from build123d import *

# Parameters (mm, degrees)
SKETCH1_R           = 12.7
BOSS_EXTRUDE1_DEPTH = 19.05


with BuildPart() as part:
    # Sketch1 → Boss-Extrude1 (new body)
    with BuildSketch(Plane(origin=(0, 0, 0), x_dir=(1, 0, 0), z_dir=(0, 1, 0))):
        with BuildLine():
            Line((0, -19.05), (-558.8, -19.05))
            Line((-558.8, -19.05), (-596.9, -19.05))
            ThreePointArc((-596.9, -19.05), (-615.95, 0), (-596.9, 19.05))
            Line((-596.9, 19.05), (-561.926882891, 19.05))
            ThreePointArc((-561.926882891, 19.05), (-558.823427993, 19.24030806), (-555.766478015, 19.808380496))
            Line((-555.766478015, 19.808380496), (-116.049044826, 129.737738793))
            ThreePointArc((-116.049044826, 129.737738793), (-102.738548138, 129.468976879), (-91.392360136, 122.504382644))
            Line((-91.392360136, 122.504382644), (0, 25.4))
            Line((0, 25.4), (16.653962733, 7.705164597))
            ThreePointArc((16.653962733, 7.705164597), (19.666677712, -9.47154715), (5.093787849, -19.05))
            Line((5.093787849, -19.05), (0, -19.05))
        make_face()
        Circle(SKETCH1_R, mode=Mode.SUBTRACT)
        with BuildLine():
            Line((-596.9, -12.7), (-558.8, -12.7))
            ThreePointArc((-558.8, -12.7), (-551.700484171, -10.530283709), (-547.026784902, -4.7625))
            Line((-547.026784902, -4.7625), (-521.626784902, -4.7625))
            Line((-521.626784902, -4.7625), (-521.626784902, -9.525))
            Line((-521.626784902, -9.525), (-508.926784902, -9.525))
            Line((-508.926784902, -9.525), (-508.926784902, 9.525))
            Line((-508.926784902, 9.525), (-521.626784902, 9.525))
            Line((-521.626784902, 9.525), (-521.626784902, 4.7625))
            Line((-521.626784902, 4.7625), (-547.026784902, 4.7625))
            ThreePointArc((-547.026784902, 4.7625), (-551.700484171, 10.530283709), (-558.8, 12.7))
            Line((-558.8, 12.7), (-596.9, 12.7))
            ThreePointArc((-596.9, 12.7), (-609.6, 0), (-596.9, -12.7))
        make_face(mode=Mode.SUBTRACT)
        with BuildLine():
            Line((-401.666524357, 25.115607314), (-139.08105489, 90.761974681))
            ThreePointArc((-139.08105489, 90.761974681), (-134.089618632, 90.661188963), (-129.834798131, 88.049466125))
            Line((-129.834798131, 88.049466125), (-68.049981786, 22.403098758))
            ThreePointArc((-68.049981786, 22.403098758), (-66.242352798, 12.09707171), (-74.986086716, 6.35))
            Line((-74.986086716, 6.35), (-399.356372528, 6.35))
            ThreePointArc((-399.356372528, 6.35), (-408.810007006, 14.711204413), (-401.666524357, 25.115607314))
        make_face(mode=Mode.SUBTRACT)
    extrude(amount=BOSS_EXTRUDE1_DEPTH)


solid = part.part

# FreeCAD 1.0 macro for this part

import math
import FreeCAD as App
import Part
import Sketcher
Q = App.Units.Quantity

doc = App.newDocument("Part")
body = doc.addObject("PartDesign::Body", "Body")

# Sketch on XZ plane
sketch1 = body.newObject("Sketcher::SketchObject", "Sketch")
sketch1.AttachmentSupport = (doc.getObject("XZ_Plane"), [""])
sketch1.MapMode = "FlatFace"
sketch1.addGeometry([
    Part.ArcOfCircle(Part.Circle(App.Vector(-596.9, 0, 0), App.Vector(0, 0, 1), 19.1), math.radians(90), math.radians(270)),  # 0
    Part.LineSegment(App.Vector(-596.9, 19.1, 0), App.Vector(5.1, 19.1, 0)),  # 1
    Part.ArcOfCircle(Part.Circle(App.Vector(5.1, 3.2, 0), App.Vector(0, 0, 1), 15.9), math.radians(-43), math.radians(90)),  # 2
    Part.LineSegment(App.Vector(16.7, -7.7, 0), App.Vector(0, -25.4, 0)),  # 3
    Part.LineSegment(App.Vector(0, -25.4, 0), App.Vector(-91.4, -122.5, 0)),  # 4
    Part.ArcOfCircle(Part.Circle(App.Vector(-109.9, -105.1, 0), App.Vector(0, 0, 1), 25.4), math.radians(-104), math.radians(-43)),  # 5
    Part.LineSegment(App.Vector(-116, -129.7, 0), App.Vector(-555.8, -19.8, 0)),  # 6
    Part.ArcOfCircle(Part.Circle(App.Vector(-561.9, -44.4, 0), App.Vector(0, 0, 1), 25.4), math.radians(75.96), math.radians(90)),  # 7
    Part.LineSegment(App.Vector(-561.9, -19.1, 0), App.Vector(-596.9, -19.1, 0)),  # 8
    Part.Circle(App.Vector(0, 0, 0), App.Vector(0, 0, 1), 12.7),  # 9
    Part.ArcOfCircle(Part.Circle(App.Vector(-596.9, 0, 0), App.Vector(0, 0, 1), 12.7), math.radians(90), math.radians(270)),  # 10
    Part.LineSegment(App.Vector(-596.9, -12.7, 0), App.Vector(-558.8, -12.7, 0)),  # 11
    Part.ArcOfCircle(Part.Circle(App.Vector(-558.8, 0, 0), App.Vector(0, 0, 1), 12.7), math.radians(-90), math.radians(-22)),  # 12
    Part.LineSegment(App.Vector(-547, -4.8, 0), App.Vector(-521.6, -4.8, 0)),  # 13
    Part.LineSegment(App.Vector(-521.6, -4.8, 0), App.Vector(-521.6, -9.5, 0)),  # 14
    Part.LineSegment(App.Vector(-521.6, -9.5, 0), App.Vector(-508.9, -9.5, 0)),  # 15
    Part.LineSegment(App.Vector(-508.9, -9.5, 0), App.Vector(-508.9, 9.5, 0)),  # 16
    Part.LineSegment(App.Vector(-508.9, 9.5, 0), App.Vector(-521.6, 9.5, 0)),  # 17
    Part.LineSegment(App.Vector(-521.6, 9.5, 0), App.Vector(-521.6, 4.8, 0)),  # 18
    Part.LineSegment(App.Vector(-521.6, 4.8, 0), App.Vector(-547, 4.8, 0)),  # 19
    Part.ArcOfCircle(Part.Circle(App.Vector(-558.8, 0, 0), App.Vector(0, 0, 1), 12.7), math.radians(22), math.radians(90)),  # 20
    Part.LineSegment(App.Vector(-558.8, 12.7, 0), App.Vector(-596.9, 12.7, 0)),  # 21
    Part.LineSegment(App.Vector(-401.7, -25.1, 0), App.Vector(-139.1, -90.8, 0)),  # 22
    Part.ArcOfCircle(Part.Circle(App.Vector(-136.8, -81.5, 0), App.Vector(0, 0, 1), 9.5), math.radians(-104), math.radians(-43)),  # 23
    Part.LineSegment(App.Vector(-129.8, -88, 0), App.Vector(-68, -22.4, 0)),  # 24
    Part.ArcOfCircle(Part.Circle(App.Vector(-75, -15.9, 0), App.Vector(0, 0, 1), 9.5), math.radians(-43), math.radians(90)),  # 25
    Part.LineSegment(App.Vector(-75, -6.3, 0), App.Vector(-399.4, -6.3, 0)),  # 26
    Part.ArcOfCircle(Part.Circle(App.Vector(-399.4, -15.9, 0), App.Vector(0, 0, 1), 9.5), math.radians(90), math.radians(256)),  # 27
], False)
sketch1.addConstraint([
    Sketcher.Constraint("Tangent", 0, 1, 1, 1),
    Sketcher.Constraint("Tangent", 1, 2, 2, 2),
    Sketcher.Constraint("Tangent", 2, 1, 3, 1),
    Sketcher.Constraint("Coincident", 3, 2, 4, 1),
    Sketcher.Constraint("Tangent", 4, 2, 5, 2),
    Sketcher.Constraint("Tangent", 5, 1, 6, 1),
    Sketcher.Constraint("Tangent", 6, 2, 7, 1),
    Sketcher.Constraint("Tangent", 7, 2, 8, 1),
    Sketcher.Constraint("Tangent", 8, 2, 0, 2),
    Sketcher.Constraint("Tangent", 10, 2, 11, 1),
    Sketcher.Constraint("Tangent", 11, 2, 12, 1),
    Sketcher.Constraint("Coincident", 12, 2, 13, 1),
    Sketcher.Constraint("Coincident", 13, 2, 14, 1),
    Sketcher.Constraint("Coincident", 14, 2, 15, 1),
    Sketcher.Constraint("Coincident", 15, 2, 16, 1),
    Sketcher.Constraint("Coincident", 16, 2, 17, 1),
    Sketcher.Constraint("Coincident", 17, 2, 18, 1),
    Sketcher.Constraint("Coincident", 18, 2, 19, 1),
    Sketcher.Constraint("Coincident", 19, 2, 20, 1),
    Sketcher.Constraint("Tangent", 20, 2, 21, 1),
    Sketcher.Constraint("Tangent", 21, 2, 10, 1),
    Sketcher.Constraint("Tangent", 22, 2, 23, 1),
    Sketcher.Constraint("Tangent", 23, 2, 24, 1),
    Sketcher.Constraint("Tangent", 24, 2, 25, 1),
    Sketcher.Constraint("Tangent", 25, 2, 26, 1),
    Sketcher.Constraint("Tangent", 26, 2, 27, 1),
    Sketcher.Constraint("Tangent", 27, 2, 22, 1),
    Sketcher.Constraint("Horizontal", 1),
    Sketcher.Constraint("Horizontal", 8),
    Sketcher.Constraint("Horizontal", 11),
    Sketcher.Constraint("Horizontal", 13),
    Sketcher.Constraint("Vertical", 14),
    Sketcher.Constraint("Horizontal", 15),
    Sketcher.Constraint("Vertical", 16),
    Sketcher.Constraint("Horizontal", 17),
    Sketcher.Constraint("Vertical", 18),
    Sketcher.Constraint("Horizontal", 19),
    Sketcher.Constraint("Horizontal", 21),
    Sketcher.Constraint("Horizontal", 26),
    Sketcher.Constraint("Coincident", 9, 3, -1, 1),
    Sketcher.Constraint("Coincident", 10, 3, 0, 3),
    Sketcher.Constraint("Coincident", 20, 3, 12, 3),
    Sketcher.Constraint("Equal", 5, 7),
    Sketcher.Constraint("Equal", 9, 10),
    Sketcher.Constraint("Equal", 10, 12),
    Sketcher.Constraint("Equal", 23, 25),
    Sketcher.Constraint("Equal", 25, 27),
    Sketcher.Constraint("Symmetric", 14, 2, 17, 2, -1),
    Sketcher.Constraint("Symmetric", 12, 2, 19, 2, -1),
    Sketcher.Constraint("PointOnObject", 3, 2, -2),
    Sketcher.Constraint("Parallel", 3, 4),
    Sketcher.Constraint("Parallel", 6, 22),
    Sketcher.Constraint("Parallel", 4, 24),
    Sketcher.Constraint("Diameter", 9, Q("1 in")),
    Sketcher.Constraint("Radius", 5, Q("1 in")),
    Sketcher.Constraint("DistanceX", 13, 1, 13, 2, Q("1 in")),
    Sketcher.Constraint("Radius", 0, Q("0.75 in")),
    Sketcher.Constraint("DistanceX", 11, 1, 11, 2, Q("1.5 in")),
    Sketcher.Constraint("DistanceX", 15, 1, 15, 2, Q("0.5 in")),
    Sketcher.Constraint("DistanceX", 12, 3, -1, 1, Q("22 in")),
    Sketcher.Constraint("DistanceY", 3, 2, -1, 1, Q("1 in")),
    Sketcher.Constraint("Radius", 2, Q("0.625 in")),
    Sketcher.Constraint("Radius", 23, Q("0.375 in")),
    Sketcher.Constraint("DistanceY", 16, 1, 16, 2, Q("0.75 in")),
    Sketcher.Constraint("DistanceY", 14, 2, 14, 1, Q("0.1875 in")),
    Sketcher.Constraint("DistanceY", 25, 2, -1, 1, Q("0.25 in")),
    Sketcher.Constraint("DistanceX", 5, 3, 4, 2, Q("0.7282 in")),
    Sketcher.Constraint("DistanceX", 23, 2, -1, 1, 129.834798),
    Sketcher.Constraint("Distance", 4, 133.348508),
    Sketcher.Constraint("DistanceX", 8, 2, 8, 1, 34.973117),
    Sketcher.Constraint("DistanceX", 26, 2, 26, 1, 324.370286),
])
pad1 = body.newObject("PartDesign::Pad", "Pad")
pad1.Profile = sketch1
pad1.Length = Q("0.75 in")
pad1.Reversed = True

doc.recompute()
